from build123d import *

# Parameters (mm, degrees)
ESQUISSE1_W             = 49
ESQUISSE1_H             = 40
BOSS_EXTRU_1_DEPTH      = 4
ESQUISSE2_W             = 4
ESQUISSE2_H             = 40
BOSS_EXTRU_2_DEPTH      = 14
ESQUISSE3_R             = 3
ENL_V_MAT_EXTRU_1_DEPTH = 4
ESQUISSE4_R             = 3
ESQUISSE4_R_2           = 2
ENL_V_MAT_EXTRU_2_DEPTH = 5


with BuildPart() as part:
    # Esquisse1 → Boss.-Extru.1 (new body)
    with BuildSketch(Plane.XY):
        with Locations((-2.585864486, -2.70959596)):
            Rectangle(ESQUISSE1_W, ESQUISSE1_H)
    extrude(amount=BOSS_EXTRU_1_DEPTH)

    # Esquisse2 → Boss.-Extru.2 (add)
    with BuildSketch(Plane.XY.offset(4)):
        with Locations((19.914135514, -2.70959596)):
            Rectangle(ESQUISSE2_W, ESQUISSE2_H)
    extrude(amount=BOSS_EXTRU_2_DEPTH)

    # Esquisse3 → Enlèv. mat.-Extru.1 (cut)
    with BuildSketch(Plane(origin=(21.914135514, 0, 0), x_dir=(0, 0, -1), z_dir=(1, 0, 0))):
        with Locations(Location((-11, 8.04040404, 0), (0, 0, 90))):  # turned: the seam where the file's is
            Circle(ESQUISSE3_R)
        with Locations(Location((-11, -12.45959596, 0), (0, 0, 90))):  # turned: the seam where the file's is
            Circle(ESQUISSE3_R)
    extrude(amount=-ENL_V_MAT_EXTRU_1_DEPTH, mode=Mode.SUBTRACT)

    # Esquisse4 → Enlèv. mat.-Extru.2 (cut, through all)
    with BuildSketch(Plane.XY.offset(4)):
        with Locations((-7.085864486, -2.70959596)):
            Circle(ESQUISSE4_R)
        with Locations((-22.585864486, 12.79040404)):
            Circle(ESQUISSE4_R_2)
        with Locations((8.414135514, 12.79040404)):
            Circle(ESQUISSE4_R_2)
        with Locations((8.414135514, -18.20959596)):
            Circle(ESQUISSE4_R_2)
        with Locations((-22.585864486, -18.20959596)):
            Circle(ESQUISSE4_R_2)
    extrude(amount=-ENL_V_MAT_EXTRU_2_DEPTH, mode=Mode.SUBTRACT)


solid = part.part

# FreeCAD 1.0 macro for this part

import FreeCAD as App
import Part
import Sketcher
from FreeCAD import Vector
Q = App.Units.Quantity


def add_polygon(sketch, points):
    """Adds a closed chain of lines whose ends are joined by coincident constraints."""
    first, n = sketch.GeometryCount, len(points)
    for a, b in zip(points, points[1:] + points[:1]):
        sketch.addGeometry(Part.LineSegment(App.Vector(*a, 0), App.Vector(*b, 0)), False)
    for i in range(n):
        sketch.addConstraint(Sketcher.Constraint("Coincident", first + i, 2, first + (i + 1) % n, 1))

doc = App.newDocument("Part")
body = doc.addObject("PartDesign::Body", "Body")

# Sketch on XY plane
sketch1 = doc.addObject("Sketcher::SketchObject", "Sketch")
body.addObject(sketch1)
sketch1.AttachmentSupport = (doc.XY_Plane, [""])
sketch1.MapMode = "FlatFace"
add_polygon(sketch1, [(-27, 17), (-27, -23), (22, -23), (22, 17)])  # lines 0-3
sketch1.addConstraint([
    Sketcher.Constraint("Vertical", 0),
    Sketcher.Constraint("Horizontal", 1),
    Sketcher.Constraint("Vertical", 2),
    Sketcher.Constraint("Horizontal", 3),
    Sketcher.Constraint("DistanceX", 1, 1, 1, 2, Q("49 mm")),
    Sketcher.Constraint("DistanceY", 0, 2, 0, 1, Q("40 mm")),
    Sketcher.Constraint("DistanceX", 0, 2, -1, 1, Q("27.085864 mm")),
    Sketcher.Constraint("DistanceY", 0, 2, -1, 1, Q("22.709596 mm")),
])
pad1 = doc.addObject("PartDesign::Pad", "Pad")
body.addObject(pad1)
pad1.Profile = sketch1
pad1.Length = 4

# Sketch on XY plane
sketch2 = doc.addObject("Sketcher::SketchObject", "Sketch001")
body.addObject(sketch2)
sketch2.AttachmentSupport = (doc.XY_Plane, [""])
sketch2.MapMode = "FlatFace"
sketch2.AttachmentOffset = App.Placement(Vector(0, 0, 4), App.Rotation())
add_polygon(sketch2, [(17.9, 17.3), (17.9, -22.7), (21.9, -22.7), (21.9, 17.3)])  # lines 0-3
sketch2.addConstraint([
    Sketcher.Constraint("Vertical", 0),
    Sketcher.Constraint("Horizontal", 1),
    Sketcher.Constraint("Vertical", 2),
    Sketcher.Constraint("Horizontal", 3),
    Sketcher.Constraint("DistanceX", 1, 1, 1, 2, Q("4 mm")),
    Sketcher.Constraint("DistanceY", 0, 2, 0, 1, Q("40 mm")),
    Sketcher.Constraint("DistanceX", -1, 1, 0, 2, Q("17.914136 mm")),
    Sketcher.Constraint("DistanceY", 0, 2, -1, 1, Q("22.709596 mm")),
])
pad2 = doc.addObject("PartDesign::Pad", "Pad001")
body.addObject(pad2)
pad2.Profile = sketch2
pad2.Length = 14

# Sketch on YZ plane
sketch3 = doc.addObject("Sketcher::SketchObject", "Sketch002")
body.addObject(sketch3)
sketch3.AttachmentSupport = (doc.YZ_Plane, [""])
sketch3.MapMode = "FlatFace"
sketch3.AttachmentOffset = App.Placement(Vector(0, 0, 21.914136), App.Rotation())
sketch3.addGeometry([
    Part.Circle(Vector(8, 11, 0), Vector(0, 0, 1), 3),
    Part.Circle(Vector(-12.5, 11, 0), Vector(0, 0, 1), 3),
], False)
sketch3.addConstraint([
    Sketcher.Constraint("Equal", 0, 1),
    Sketcher.Constraint("Horizontal", 0, 3, 1, 3),
    Sketcher.Constraint("Diameter", 0, Q("6 mm")),
    Sketcher.Constraint("DistanceY", -1, 1, 0, 3, Q("11 mm")),
    Sketcher.Constraint("DistanceX", 1, 3, 0, 3, Q("20.5 mm")),
    Sketcher.Constraint("DistanceX", -1, 1, 0, 3, Q("8.040404 mm")),
])
pocket1 = doc.addObject("PartDesign::Pocket", "Pocket")
body.addObject(pocket1)
pocket1.Profile = sketch3
pocket1.Length = 4

# Sketch on XY plane
sketch4 = doc.addObject("Sketcher::SketchObject", "Sketch003")
body.addObject(sketch4)
sketch4.AttachmentSupport = (doc.XY_Plane, [""])
sketch4.MapMode = "FlatFace"
sketch4.AttachmentOffset = App.Placement(Vector(0, 0, 4), App.Rotation())
sketch4.addGeometry([
    Part.Circle(Vector(-7.1, -2.7, 0), Vector(0, 0, 1), 3),  # 0
    Part.Circle(Vector(-22.6, 12.8, 0), Vector(0, 0, 1), 2),  # 1
    Part.Circle(Vector(8.4, 12.8, 0), Vector(0, 0, 1), 2),  # 2
    Part.Circle(Vector(8.4, -18.2, 0), Vector(0, 0, 1), 2),  # 3
    Part.Circle(Vector(-22.6, -18.2, 0), Vector(0, 0, 1), 2),  # 4
], False)
sketch4.addConstraint([
    Sketcher.Constraint("Equal", 1, 2),
    Sketcher.Constraint("Equal", 2, 3),
    Sketcher.Constraint("Equal", 3, 4),
    Sketcher.Constraint("Horizontal", 1, 3, 2, 3),
    Sketcher.Constraint("Horizontal", 3, 3, 4, 3),
    Sketcher.Constraint("Vertical", 2, 3, 3, 3),
    Sketcher.Constraint("Vertical", 1, 3, 4, 3),
    Sketcher.Constraint("Diameter", 0, Q("6 mm")),
    Sketcher.Constraint("Diameter", 1, Q("4 mm")),
    Sketcher.Constraint("DistanceX", 1, 3, 2, 3, Q("31 mm")),
    Sketcher.Constraint("DistanceY", 3, 3, 2, 3, Q("31 mm")),
    Sketcher.Constraint("DistanceX", 1, 3, 0, 3, Q("15.5 mm")),
    Sketcher.Constraint("DistanceY", 0, 3, 1, 3, Q("15.5 mm")),
    Sketcher.Constraint("DistanceX", 0, 3, -1, 1, Q("7.085864 mm")),
    Sketcher.Constraint("DistanceY", 0, 3, -1, 1, Q("2.709596 mm")),
])
pocket2 = doc.addObject("PartDesign::Pocket", "Pocket001")
body.addObject(pocket2)
pocket2.Profile = sketch4
pocket2.Type = "ThroughAll"

doc.recompute()
